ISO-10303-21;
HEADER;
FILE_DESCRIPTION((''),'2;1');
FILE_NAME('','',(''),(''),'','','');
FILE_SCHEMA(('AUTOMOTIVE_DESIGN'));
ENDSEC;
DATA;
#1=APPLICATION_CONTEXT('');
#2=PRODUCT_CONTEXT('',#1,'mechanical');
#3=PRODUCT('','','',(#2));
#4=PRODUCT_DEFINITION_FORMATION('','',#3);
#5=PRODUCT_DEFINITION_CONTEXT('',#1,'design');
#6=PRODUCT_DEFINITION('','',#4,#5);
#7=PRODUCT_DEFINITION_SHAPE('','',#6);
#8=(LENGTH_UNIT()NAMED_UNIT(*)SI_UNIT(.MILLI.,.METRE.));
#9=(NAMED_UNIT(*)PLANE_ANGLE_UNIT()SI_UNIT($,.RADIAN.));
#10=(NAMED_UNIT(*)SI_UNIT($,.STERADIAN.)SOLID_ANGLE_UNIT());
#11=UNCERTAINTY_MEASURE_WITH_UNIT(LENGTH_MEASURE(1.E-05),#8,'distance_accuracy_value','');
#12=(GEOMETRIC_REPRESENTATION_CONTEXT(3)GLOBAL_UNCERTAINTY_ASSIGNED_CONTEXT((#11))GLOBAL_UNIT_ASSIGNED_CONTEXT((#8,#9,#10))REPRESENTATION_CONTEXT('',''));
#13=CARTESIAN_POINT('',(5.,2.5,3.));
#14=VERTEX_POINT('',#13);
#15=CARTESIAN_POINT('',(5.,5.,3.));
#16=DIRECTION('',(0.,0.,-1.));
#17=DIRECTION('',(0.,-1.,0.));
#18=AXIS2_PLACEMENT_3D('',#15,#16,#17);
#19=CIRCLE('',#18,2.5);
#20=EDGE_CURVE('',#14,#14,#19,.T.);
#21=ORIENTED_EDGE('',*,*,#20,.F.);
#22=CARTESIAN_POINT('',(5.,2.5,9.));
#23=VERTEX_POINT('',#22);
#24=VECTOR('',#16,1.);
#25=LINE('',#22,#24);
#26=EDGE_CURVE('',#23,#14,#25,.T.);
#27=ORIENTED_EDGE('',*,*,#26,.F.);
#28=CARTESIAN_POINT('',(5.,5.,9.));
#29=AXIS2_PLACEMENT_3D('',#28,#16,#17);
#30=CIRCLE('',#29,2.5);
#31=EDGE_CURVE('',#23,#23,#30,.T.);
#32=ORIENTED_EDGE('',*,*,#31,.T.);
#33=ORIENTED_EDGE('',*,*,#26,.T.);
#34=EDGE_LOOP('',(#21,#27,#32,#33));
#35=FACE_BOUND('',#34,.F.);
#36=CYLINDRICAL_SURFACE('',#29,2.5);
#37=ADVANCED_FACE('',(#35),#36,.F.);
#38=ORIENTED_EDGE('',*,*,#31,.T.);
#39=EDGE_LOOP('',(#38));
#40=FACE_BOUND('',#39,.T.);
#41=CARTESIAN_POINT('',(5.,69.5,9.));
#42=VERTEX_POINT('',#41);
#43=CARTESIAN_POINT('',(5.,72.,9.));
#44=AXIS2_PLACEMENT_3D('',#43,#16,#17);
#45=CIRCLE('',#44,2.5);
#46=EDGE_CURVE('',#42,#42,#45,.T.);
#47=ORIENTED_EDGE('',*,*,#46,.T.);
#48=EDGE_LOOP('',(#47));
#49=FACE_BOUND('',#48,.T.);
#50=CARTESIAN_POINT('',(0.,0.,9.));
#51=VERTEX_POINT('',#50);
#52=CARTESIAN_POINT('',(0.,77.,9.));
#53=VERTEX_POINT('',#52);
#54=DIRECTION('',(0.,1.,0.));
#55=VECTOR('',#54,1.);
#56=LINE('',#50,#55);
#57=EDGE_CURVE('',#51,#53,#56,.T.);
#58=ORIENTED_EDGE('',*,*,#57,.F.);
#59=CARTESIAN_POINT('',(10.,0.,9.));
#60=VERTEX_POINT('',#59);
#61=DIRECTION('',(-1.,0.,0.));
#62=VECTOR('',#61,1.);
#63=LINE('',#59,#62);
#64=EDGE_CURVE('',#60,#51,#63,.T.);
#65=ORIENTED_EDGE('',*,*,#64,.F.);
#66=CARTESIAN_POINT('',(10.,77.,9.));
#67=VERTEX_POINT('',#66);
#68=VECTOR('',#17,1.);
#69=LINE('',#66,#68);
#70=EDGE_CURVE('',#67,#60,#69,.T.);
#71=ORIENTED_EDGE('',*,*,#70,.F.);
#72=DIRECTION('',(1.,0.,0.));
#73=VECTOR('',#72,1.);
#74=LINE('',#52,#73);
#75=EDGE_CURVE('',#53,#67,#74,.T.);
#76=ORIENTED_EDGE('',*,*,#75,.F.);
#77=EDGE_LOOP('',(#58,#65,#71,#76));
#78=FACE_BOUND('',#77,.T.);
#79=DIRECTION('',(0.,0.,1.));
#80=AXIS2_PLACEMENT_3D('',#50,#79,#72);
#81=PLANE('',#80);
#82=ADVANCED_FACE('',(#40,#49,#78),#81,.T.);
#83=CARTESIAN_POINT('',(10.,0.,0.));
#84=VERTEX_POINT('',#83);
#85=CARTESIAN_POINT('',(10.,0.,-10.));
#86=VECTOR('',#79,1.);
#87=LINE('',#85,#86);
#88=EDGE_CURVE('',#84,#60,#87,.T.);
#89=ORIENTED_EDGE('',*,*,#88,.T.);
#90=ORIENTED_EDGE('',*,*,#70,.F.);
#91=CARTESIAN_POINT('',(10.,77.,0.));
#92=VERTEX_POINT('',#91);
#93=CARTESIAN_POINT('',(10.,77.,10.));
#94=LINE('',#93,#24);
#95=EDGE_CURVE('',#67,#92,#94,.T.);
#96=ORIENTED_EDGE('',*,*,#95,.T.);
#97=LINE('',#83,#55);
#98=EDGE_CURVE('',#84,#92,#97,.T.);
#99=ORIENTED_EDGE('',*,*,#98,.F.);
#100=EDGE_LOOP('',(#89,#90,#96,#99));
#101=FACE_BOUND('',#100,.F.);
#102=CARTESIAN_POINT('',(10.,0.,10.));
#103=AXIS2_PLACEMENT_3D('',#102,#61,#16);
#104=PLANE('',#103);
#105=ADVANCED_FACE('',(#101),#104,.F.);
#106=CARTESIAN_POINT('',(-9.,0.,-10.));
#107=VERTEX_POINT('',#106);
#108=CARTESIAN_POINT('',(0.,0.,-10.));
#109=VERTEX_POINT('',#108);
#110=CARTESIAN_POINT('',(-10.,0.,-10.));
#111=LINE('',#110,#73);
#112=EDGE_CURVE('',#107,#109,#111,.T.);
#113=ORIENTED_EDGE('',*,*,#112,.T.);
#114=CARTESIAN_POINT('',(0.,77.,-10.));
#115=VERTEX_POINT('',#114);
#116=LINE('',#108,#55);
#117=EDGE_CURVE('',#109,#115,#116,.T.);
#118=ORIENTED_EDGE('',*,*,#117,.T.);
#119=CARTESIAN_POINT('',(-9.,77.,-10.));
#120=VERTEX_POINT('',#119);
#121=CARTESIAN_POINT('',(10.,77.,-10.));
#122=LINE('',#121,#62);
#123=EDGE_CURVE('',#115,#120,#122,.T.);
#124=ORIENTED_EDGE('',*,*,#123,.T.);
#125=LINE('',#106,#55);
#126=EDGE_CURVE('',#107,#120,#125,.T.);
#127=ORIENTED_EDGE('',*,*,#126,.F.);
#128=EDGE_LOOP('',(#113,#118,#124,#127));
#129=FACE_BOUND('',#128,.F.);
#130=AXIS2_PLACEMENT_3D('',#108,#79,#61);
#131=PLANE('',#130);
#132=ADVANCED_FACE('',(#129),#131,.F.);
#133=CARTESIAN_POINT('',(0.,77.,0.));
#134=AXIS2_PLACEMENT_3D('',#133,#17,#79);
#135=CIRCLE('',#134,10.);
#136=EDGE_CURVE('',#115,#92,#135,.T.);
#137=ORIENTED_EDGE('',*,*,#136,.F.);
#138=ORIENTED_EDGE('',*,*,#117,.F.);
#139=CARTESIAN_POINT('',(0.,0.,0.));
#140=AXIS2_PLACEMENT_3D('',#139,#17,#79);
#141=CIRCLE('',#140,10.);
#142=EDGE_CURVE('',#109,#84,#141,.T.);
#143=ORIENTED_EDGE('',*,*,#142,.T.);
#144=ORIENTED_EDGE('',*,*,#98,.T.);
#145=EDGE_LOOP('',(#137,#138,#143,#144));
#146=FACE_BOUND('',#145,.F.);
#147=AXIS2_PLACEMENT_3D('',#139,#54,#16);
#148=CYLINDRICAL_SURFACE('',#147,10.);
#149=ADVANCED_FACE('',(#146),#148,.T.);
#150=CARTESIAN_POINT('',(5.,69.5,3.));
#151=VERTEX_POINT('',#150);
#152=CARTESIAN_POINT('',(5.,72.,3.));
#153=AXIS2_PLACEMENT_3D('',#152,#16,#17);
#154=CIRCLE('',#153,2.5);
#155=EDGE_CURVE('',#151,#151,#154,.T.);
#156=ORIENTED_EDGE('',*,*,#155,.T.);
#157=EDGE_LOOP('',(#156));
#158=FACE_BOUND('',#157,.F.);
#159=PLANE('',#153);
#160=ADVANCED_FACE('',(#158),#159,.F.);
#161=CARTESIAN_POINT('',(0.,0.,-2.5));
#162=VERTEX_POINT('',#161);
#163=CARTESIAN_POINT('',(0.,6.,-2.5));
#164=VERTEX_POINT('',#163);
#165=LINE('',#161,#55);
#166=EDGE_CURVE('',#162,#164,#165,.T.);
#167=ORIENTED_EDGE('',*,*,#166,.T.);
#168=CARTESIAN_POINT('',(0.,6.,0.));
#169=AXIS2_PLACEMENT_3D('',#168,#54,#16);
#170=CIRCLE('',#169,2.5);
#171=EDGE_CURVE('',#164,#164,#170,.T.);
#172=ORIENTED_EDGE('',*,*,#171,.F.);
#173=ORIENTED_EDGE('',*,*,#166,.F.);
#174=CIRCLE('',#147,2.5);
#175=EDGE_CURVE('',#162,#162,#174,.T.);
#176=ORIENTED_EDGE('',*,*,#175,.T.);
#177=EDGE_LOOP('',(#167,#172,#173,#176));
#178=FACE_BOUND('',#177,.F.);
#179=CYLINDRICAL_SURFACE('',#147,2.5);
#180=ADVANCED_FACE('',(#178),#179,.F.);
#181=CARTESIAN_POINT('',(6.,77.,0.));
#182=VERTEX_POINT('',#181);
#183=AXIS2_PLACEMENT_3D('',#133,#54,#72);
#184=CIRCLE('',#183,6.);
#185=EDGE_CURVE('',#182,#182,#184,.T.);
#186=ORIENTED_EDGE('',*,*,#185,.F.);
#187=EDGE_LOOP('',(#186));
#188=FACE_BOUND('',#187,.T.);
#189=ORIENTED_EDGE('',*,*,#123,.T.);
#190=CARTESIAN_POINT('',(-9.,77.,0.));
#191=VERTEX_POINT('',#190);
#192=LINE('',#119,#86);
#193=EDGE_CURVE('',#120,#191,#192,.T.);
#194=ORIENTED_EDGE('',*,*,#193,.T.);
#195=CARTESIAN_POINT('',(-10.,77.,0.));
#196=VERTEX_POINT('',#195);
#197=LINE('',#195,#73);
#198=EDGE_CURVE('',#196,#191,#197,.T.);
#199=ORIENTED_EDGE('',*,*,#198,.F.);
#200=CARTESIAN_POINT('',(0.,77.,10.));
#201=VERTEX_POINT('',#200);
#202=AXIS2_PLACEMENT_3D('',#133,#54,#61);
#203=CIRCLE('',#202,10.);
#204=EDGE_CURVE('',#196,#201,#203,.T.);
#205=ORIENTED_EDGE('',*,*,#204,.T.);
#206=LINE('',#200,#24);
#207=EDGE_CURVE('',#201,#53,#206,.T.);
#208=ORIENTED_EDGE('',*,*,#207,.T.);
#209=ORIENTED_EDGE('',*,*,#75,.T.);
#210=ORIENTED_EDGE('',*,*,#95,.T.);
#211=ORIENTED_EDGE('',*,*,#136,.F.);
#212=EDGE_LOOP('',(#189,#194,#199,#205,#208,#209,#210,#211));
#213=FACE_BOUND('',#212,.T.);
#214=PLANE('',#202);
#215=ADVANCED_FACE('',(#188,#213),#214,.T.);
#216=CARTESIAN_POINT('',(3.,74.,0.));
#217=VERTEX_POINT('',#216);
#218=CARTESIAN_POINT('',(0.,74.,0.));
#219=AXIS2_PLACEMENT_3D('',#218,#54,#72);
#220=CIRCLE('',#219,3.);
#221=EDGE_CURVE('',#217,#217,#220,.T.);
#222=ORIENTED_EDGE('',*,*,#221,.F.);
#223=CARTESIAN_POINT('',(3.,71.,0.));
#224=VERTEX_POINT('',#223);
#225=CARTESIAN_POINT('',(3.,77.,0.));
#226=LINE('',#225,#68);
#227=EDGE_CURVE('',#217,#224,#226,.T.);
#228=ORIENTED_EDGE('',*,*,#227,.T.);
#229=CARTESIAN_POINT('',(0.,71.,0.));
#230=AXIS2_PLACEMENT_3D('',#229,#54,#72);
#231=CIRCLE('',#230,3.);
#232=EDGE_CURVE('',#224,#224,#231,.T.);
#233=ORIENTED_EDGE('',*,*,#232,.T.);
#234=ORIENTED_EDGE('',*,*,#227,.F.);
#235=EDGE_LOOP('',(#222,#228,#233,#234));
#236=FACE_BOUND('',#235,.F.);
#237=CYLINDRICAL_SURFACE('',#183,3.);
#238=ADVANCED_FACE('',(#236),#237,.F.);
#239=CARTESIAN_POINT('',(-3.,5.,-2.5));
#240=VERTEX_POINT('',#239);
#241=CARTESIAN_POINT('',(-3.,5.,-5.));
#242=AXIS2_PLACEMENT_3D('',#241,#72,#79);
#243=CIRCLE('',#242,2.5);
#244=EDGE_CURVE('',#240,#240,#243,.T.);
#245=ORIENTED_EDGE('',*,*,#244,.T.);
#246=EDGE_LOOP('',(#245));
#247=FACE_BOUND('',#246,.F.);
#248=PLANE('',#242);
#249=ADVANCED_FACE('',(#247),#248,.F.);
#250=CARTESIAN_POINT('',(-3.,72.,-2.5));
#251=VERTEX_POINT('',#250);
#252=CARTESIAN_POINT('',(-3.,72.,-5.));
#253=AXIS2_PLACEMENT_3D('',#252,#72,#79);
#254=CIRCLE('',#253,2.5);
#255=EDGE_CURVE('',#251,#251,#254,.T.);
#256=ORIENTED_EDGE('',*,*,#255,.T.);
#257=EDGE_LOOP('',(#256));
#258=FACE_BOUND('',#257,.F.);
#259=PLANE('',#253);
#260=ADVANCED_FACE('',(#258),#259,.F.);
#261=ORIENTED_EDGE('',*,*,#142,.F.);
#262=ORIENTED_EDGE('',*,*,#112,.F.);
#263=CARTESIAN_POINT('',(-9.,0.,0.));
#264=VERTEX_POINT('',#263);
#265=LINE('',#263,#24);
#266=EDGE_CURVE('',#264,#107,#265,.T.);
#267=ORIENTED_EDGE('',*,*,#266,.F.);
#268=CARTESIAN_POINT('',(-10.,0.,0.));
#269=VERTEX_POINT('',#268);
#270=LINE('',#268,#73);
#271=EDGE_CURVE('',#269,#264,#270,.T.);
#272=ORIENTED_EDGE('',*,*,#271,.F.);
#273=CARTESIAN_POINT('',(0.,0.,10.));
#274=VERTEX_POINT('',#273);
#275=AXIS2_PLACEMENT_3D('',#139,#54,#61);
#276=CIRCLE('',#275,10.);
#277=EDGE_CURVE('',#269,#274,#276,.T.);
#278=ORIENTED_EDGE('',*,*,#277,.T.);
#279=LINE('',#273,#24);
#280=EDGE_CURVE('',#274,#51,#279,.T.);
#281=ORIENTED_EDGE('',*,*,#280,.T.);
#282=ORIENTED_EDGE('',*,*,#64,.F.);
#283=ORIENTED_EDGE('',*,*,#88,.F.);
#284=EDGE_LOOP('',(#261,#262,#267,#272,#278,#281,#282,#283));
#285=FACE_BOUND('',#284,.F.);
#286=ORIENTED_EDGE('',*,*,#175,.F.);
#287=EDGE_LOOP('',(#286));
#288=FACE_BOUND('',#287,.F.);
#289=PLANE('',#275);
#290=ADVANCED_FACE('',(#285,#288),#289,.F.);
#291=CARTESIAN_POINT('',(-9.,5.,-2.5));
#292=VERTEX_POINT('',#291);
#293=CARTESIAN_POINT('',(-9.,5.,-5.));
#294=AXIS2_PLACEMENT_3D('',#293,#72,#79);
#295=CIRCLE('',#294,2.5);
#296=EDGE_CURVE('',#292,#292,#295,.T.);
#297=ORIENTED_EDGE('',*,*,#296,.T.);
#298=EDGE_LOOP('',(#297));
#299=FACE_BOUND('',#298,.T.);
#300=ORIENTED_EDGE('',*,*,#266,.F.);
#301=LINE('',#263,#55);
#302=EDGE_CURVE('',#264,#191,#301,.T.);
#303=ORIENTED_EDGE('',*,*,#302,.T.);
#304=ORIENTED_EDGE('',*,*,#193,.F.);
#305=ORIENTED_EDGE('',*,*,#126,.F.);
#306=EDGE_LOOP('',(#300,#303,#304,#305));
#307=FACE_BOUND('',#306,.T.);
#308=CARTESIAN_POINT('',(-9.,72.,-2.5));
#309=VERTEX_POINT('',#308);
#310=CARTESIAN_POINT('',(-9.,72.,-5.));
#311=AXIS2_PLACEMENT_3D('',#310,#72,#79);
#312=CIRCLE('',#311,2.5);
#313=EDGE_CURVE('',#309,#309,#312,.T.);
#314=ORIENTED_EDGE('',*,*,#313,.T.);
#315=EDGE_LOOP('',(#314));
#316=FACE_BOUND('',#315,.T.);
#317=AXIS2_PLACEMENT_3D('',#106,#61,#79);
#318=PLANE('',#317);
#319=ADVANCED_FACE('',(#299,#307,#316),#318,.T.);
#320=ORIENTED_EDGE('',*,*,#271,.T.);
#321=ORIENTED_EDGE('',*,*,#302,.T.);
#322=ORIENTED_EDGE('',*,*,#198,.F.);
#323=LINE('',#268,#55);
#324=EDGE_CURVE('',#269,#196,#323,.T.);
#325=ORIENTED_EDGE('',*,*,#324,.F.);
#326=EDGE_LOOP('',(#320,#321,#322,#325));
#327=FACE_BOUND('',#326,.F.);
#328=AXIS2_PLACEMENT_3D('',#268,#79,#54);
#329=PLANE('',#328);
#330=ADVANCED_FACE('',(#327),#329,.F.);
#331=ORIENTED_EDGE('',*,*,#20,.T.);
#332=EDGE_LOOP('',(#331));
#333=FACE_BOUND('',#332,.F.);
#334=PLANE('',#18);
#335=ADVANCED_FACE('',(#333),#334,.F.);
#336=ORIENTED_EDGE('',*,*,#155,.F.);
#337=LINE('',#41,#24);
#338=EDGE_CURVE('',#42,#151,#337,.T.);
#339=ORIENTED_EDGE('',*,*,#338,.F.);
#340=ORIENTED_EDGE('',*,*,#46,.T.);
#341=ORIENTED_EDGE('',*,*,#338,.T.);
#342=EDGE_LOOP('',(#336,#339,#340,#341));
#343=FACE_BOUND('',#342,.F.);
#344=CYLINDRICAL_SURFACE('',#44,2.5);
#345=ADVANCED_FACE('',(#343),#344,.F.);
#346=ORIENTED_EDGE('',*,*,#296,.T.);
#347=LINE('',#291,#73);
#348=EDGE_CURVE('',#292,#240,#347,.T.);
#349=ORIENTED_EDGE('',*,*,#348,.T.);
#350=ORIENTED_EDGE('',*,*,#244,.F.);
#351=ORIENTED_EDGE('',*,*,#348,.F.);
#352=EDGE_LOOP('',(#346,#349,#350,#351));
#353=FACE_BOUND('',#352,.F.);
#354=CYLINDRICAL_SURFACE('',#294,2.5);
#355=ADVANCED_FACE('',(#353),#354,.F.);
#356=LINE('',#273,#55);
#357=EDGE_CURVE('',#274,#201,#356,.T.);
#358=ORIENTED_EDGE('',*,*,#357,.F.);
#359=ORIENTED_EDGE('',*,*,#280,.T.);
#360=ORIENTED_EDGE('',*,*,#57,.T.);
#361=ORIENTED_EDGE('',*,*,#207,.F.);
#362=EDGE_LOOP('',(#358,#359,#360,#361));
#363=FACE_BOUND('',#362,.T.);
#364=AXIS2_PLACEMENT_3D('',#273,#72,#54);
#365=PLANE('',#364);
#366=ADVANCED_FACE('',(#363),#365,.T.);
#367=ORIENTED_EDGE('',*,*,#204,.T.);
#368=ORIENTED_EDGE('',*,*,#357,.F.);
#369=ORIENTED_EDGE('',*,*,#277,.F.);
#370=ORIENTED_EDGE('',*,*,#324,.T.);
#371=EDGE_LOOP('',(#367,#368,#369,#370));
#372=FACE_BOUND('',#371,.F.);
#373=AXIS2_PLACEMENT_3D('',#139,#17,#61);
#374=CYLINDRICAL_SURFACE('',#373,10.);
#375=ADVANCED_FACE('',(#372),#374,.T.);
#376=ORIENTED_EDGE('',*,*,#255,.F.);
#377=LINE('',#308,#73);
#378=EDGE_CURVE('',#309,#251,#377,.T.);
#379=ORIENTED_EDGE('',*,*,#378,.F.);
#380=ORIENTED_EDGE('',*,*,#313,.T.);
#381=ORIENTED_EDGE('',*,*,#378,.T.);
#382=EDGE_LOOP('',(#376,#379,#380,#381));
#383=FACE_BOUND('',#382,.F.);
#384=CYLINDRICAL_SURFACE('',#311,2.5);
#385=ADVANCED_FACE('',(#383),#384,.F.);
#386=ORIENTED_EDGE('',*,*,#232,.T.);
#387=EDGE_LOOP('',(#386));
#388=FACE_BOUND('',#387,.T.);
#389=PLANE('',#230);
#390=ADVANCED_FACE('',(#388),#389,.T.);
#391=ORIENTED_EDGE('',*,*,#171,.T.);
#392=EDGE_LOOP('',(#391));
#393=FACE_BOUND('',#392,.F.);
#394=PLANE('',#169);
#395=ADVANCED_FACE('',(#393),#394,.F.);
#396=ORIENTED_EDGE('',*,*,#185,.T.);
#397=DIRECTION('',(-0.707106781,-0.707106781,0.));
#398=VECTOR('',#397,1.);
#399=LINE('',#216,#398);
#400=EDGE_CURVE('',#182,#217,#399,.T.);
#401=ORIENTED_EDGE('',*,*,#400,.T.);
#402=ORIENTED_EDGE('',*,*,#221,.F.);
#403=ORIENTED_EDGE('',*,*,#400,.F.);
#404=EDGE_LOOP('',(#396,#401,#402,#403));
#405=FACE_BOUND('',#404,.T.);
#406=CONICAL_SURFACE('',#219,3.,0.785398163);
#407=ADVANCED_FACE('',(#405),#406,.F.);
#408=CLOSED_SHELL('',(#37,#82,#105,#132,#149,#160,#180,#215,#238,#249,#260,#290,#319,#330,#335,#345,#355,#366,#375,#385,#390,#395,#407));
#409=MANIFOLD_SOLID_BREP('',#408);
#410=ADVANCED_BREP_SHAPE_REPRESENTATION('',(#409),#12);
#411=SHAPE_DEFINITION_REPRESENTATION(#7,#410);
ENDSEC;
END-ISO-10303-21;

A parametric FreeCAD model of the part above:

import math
import FreeCAD as App
import Part
import Sketcher


def edges_at(feature, points):
    """Names of the edges that pass closest to the given points."""
    edges = feature.Shape.Edges
    near = lambda p: min(range(len(edges)), key=lambda i: edges[i].distToShape(Part.Vertex(*p))[0])
    return sorted({f"Edge{near(p) + 1}" for p in points})


def add_polygon(sketch, points):
    """Adds a closed chain of lines whose ends are joined by coincident constraints."""
    first, n = sketch.GeometryCount, len(points)
    for a, b in zip(points, points[1:] + points[:1]):
        sketch.addGeometry(Part.LineSegment(App.Vector(*a, 0), App.Vector(*b, 0)), False)
    for i in range(n):
        sketch.addConstraint(Sketcher.Constraint("Coincident", first + i, 2, first + (i + 1) % n, 1))

doc = App.newDocument("Part")
body = doc.addObject("PartDesign::Body", "Body")

# Sketch on XZ plane
sketch1 = body.newObject("Sketcher::SketchObject", "Sketch")
sketch1.AttachmentSupport = (doc.getObject("XZ_Plane"), [""])
sketch1.MapMode = "FlatFace"
sketch1.addGeometry([
    Part.ArcOfCircle(Part.Circle(App.Vector(0, 0, 0), App.Vector(0, 0, 1), 10), math.radians(90), math.radians(180)),  # 0
    Part.LineSegment(App.Vector(0, 10, 0), App.Vector(10, 10, 0)),  # 1
    Part.LineSegment(App.Vector(10, 10, 0), App.Vector(10, -10, 0)),  # 2
    Part.LineSegment(App.Vector(10, -10, 0), App.Vector(-10, -10, 0)),  # 3
    Part.LineSegment(App.Vector(-10, -10, 0), App.Vector(-10, 0, 0)),  # 4
], False)
sketch1.addConstraint([
    Sketcher.Constraint("Tangent", 0, 1, 1, 1),
    Sketcher.Constraint("Coincident", 1, 2, 2, 1),
    Sketcher.Constraint("Coincident", 2, 2, 3, 1),
    Sketcher.Constraint("Coincident", 3, 2, 4, 1),
    Sketcher.Constraint("Tangent", 4, 2, 0, 2),
    Sketcher.Constraint("Horizontal", 1),
    Sketcher.Constraint("Vertical", 2),
    Sketcher.Constraint("Horizontal", 3),
    Sketcher.Constraint("Vertical", 4),
    Sketcher.Constraint("Coincident", 0, 3, -1, 1),
    Sketcher.Constraint("Symmetric", 1, 2, 3, 2, -1, 1),
    Sketcher.Constraint("Radius", 0, 10.0),
])
pad1 = body.newObject("PartDesign::Pad", "Pad")
pad1.Profile = sketch1
pad1.Length = 77
pad1.Reversed = True

# Sketch on XY plane
sketch2 = body.newObject("Sketcher::SketchObject", "Sketch001")
sketch2.AttachmentSupport = (doc.getObject("XY_Plane"), [""])
sketch2.MapMode = "FlatFace"
sketch2.AttachmentOffset = App.Placement(App.Vector(0, 0, 10), App.Rotation())
add_polygon(sketch2, [(0, 77), (0, 0), (10, 0), (10, 77)])  # lines 0-3
sketch2.addConstraint([
    Sketcher.Constraint("Vertical", 0),
    Sketcher.Constraint("Horizontal", 1),
    Sketcher.Constraint("Vertical", 2),
    Sketcher.Constraint("Horizontal", 3),
    Sketcher.Constraint("Coincident", 0, 2, -1, 1),
    Sketcher.Constraint("DistanceX", 1, 1, 1, 2, 10.0),
    Sketcher.Constraint("DistanceY", 0, 2, 0, 1, 77.0),
])
pocket1 = body.newObject("PartDesign::Pocket", "Pocket")
pocket1.Profile = sketch2
pocket1.Length = 1

# Sketch on YZ plane
sketch3 = body.newObject("Sketcher::SketchObject", "Sketch002")
sketch3.AttachmentSupport = (doc.getObject("YZ_Plane"), [""])
sketch3.MapMode = "FlatFace"
sketch3.AttachmentOffset = App.Placement(App.Vector(0, 0, -10), App.Rotation())
add_polygon(sketch3, [(77, 0), (77, -10), (0, -10), (0, 0)])  # lines 0-3
sketch3.addConstraint([
    Sketcher.Constraint("Vertical", 0),
    Sketcher.Constraint("Horizontal", 1),
    Sketcher.Constraint("Vertical", 2),
    Sketcher.Constraint("Horizontal", 3),
    Sketcher.Constraint("Coincident", 2, 2, -1, 1),
    Sketcher.Constraint("DistanceX", 1, 2, 1, 1, 77.0),
    Sketcher.Constraint("DistanceY", 0, 2, 0, 1, 10.0),
])
pocket2 = body.newObject("PartDesign::Pocket", "Pocket001")
pocket2.Profile = sketch3
pocket2.Length = 1
pocket2.Reversed = True

# Sketch on XY plane
sketch4 = body.newObject("Sketcher::SketchObject", "Sketch003")
sketch4.AttachmentSupport = (doc.getObject("XY_Plane"), [""])
sketch4.MapMode = "FlatFace"
sketch4.AttachmentOffset = App.Placement(App.Vector(0, 0, 9), App.Rotation())
sketch4.addGeometry([
    Part.Circle(App.Vector(5, 72, 0), App.Vector(0, 0, 1), 2.5),
    Part.Circle(App.Vector(5, 5, 0), App.Vector(0, 0, 1), 2.5),
], False)
sketch4.addConstraint([
    Sketcher.Constraint("Equal", 0, 1),
    Sketcher.Constraint("Vertical", 0, 3, 1, 3),
    Sketcher.Constraint("Diameter", 0, 5.0),
    Sketcher.Constraint("DistanceX", -1, 1, 0, 3, 5.0),
    Sketcher.Constraint("DistanceY", -1, 1, 0, 3, 72.0),
    Sketcher.Constraint("DistanceY", -1, 1, 1, 3, 5.0),
])
doc.recompute()
hole = body.newObject("PartDesign::Hole", "Hole")
hole.Profile = sketch4
hole.ThreadType = "None"
hole.Diameter = 5
hole.DepthType = "Dimension"
hole.Depth = 6
hole.DrillPoint = "Flat"

# Sketch on XZ plane
sketch5 = body.newObject("Sketcher::SketchObject", "Sketch004")
sketch5.AttachmentSupport = (doc.getObject("XZ_Plane"), [""])
sketch5.MapMode = "FlatFace"
sketch5.addGeometry(Part.Circle(App.Vector(0, 0, 0), App.Vector(0, 0, 1), 2.5), False)
sketch5.addConstraint([
    Sketcher.Constraint("Coincident", 0, 3, -1, 1),
    Sketcher.Constraint("Diameter", 0, 5.0),
])
doc.recompute()
hole2 = body.newObject("PartDesign::Hole", "Hole001")
hole2.Profile = sketch5
hole2.ThreadType = "None"
hole2.Diameter = 5
hole2.DepthType = "Dimension"
hole2.Depth = 6
hole2.DrillPoint = "Flat"

# Sketch on YZ plane
sketch6 = body.newObject("Sketcher::SketchObject", "Sketch005")
sketch6.AttachmentSupport = (doc.getObject("YZ_Plane"), [""])
sketch6.MapMode = "FlatFace"
sketch6.AttachmentOffset = App.Placement(App.Vector(0, 0, -9), App.Rotation())
sketch6.addGeometry([
    Part.Circle(App.Vector(72, -5, 0), App.Vector(0, 0, 1), 2.5),
    Part.Circle(App.Vector(5, -5, 0), App.Vector(0, 0, 1), 2.5),
], False)
sketch6.addConstraint([
    Sketcher.Constraint("Equal", 0, 1),
    Sketcher.Constraint("Horizontal", 0, 3, 1, 3),
    Sketcher.Constraint("Diameter", 0, 5.0),
    Sketcher.Constraint("DistanceX", -1, 1, 0, 3, 72.0),
    Sketcher.Constraint("DistanceY", 0, 3, -1, 1, 5.0),
    Sketcher.Constraint("DistanceX", -1, 1, 1, 3, 5.0),
])
doc.recompute()
hole3 = body.newObject("PartDesign::Hole", "Hole002")
hole3.Profile = sketch6
hole3.ThreadType = "None"
hole3.Diameter = 5
hole3.DepthType = "Dimension"
hole3.Depth = 6
hole3.DrillPoint = "Flat"
hole3.Reversed = True

# Sketch on XZ plane
sketch7 = body.newObject("Sketcher::SketchObject", "Sketch006")
sketch7.AttachmentSupport = (doc.getObject("XZ_Plane"), [""])
sketch7.MapMode = "FlatFace"
sketch7.AttachmentOffset = App.Placement(App.Vector(0, 0, -77), App.Rotation())
sketch7.addGeometry(Part.Circle(App.Vector(0, 0, 0), App.Vector(0, 0, 1), 3), False)
sketch7.addConstraint([
    Sketcher.Constraint("Coincident", 0, 3, -1, 1),
    Sketcher.Constraint("Diameter", 0, 6.0),
])
pocket3 = body.newObject("PartDesign::Pocket", "Pocket002")
pocket3.Profile = sketch7
pocket3.Length = 6
pocket3.Reversed = True
doc.recompute()

chamfer = body.newObject("PartDesign::Chamfer", "Chamfer")
chamfer.Base = (pocket3, edges_at(pocket3, [(-3, 77, 0)]))
chamfer.Size = 3
doc.recompute()

fillet = body.newObject("PartDesign::Fillet", "Fillet")
fillet.Base = (chamfer, edges_at(chamfer, [(10, 38.5, -10)]))
fillet.Radius = 10

doc.recompute()
